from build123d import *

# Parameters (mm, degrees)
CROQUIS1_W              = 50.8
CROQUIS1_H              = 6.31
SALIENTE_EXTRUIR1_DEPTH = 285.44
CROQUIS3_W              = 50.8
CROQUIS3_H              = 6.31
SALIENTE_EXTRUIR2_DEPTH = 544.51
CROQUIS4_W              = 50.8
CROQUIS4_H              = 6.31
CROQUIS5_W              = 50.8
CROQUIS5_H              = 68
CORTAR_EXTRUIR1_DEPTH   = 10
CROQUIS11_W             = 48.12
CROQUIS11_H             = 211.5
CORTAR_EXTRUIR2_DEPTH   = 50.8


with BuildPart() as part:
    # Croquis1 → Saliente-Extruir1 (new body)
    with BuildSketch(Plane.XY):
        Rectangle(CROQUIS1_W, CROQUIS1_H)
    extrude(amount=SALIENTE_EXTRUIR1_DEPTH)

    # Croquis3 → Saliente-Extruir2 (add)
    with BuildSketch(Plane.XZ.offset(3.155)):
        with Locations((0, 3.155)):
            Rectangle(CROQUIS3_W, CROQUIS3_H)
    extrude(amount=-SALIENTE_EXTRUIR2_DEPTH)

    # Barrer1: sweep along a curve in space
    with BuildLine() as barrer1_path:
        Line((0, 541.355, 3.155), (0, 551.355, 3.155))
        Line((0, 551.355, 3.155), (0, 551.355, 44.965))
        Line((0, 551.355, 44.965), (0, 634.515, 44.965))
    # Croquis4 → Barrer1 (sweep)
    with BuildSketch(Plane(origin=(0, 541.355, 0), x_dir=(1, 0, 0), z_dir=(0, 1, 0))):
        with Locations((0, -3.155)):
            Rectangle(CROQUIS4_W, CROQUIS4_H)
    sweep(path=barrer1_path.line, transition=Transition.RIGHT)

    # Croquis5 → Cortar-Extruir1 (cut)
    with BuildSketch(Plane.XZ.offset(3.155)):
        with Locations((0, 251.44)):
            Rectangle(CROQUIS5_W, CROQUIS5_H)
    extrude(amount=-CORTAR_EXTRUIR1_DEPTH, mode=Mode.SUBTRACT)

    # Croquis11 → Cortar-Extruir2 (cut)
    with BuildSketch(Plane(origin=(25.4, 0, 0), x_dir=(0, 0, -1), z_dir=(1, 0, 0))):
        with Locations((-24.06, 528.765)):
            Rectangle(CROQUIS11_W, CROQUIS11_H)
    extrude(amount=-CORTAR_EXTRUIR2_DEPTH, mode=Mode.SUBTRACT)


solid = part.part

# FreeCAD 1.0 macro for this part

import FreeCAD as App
import Part
import Sketcher

V = App.Vector
Q = App.Units.Quantity


def add_polygon(sketch, points):
    """Adds a closed chain of lines whose ends are joined by coincident constraints."""
    first, n = sketch.GeometryCount, len(points)
    for a, b in zip(points, points[1:] + points[:1]):
        sketch.addGeometry(Part.LineSegment(App.Vector(*a, 0), App.Vector(*b, 0)), False)
    for i in range(n):
        sketch.addConstraint(Sketcher.Constraint("Coincident", first + i, 2, first + (i + 1) % n, 1))

doc = App.newDocument("Part")
body = doc.addObject("PartDesign::Body", "Body")

# Sketch on XY plane
sketch1 = doc.addObject("Sketcher::SketchObject", "Sketch")
body.addObject(sketch1)
sketch1.AttachmentSupport = (doc.XY_Plane, [""])
sketch1.MapMode = "FlatFace"
add_polygon(sketch1, [(-25, 3), (-25, -3), (25, -3), (25, 3)])  # lines 0-3
sketch1.addConstraint([
    Sketcher.Constraint("Vertical", 0),
    Sketcher.Constraint("Horizontal", 1),
    Sketcher.Constraint("Vertical", 2),
    Sketcher.Constraint("Horizontal", 3),
    Sketcher.Constraint("Symmetric", 0, 2, 2, 2, -1, 1),
    Sketcher.Constraint("DistanceX", 1, 1, 1, 2, Q("50.8 mm")),
    Sketcher.Constraint("DistanceY", 0, 2, 0, 1, Q("6.31 mm")),
])
pad1 = doc.addObject("PartDesign::Pad", "Pad")
body.addObject(pad1)
pad1.Profile = sketch1
pad1.Length = 285.44

# Sketch on XZ plane
sketch2 = doc.addObject("Sketcher::SketchObject", "Sketch001")
body.addObject(sketch2)
sketch2.AttachmentSupport = (doc.XZ_Plane, [""])
sketch2.MapMode = "FlatFace"
sketch2.AttachmentOffset = App.Placement(V(0, 0, 3.155), App.Rotation())
add_polygon(sketch2, [(-25, 6), (-25, 0), (25, 0), (25, 6)])  # lines 0-3
sketch2.addConstraint([
    Sketcher.Constraint("Vertical", 0),
    Sketcher.Constraint("Horizontal", 1),
    Sketcher.Constraint("Vertical", 2),
    Sketcher.Constraint("Horizontal", 3),
    Sketcher.Constraint("Symmetric", 0, 2, 1, 2, -1, 1),
    Sketcher.Constraint("DistanceX", 1, 1, 1, 2, Q("50.8 mm")),
    Sketcher.Constraint("DistanceY", 0, 2, 0, 1, Q("6.31 mm")),
])
pad2 = doc.addObject("PartDesign::Pad", "Pad001")
body.addObject(pad2)
pad2.Profile = sketch2
pad2.Length = 544.51
pad2.Reversed = True

# Sketch on XZ plane
sketch3 = doc.addObject("Sketcher::SketchObject", "Sketch002")
body.addObject(sketch3)
sketch3.AttachmentSupport = (doc.XZ_Plane, [""])
sketch3.MapMode = "FlatFace"
sketch3.AttachmentOffset = App.Placement(V(0, 0, -541.355), App.Rotation())
add_polygon(sketch3, [(-25, 0), (-25, 6), (25, 6), (25, 0)])  # lines 0-3
sketch3.addConstraint([
    Sketcher.Constraint("Vertical", 0),
    Sketcher.Constraint("Horizontal", 1),
    Sketcher.Constraint("Vertical", 2),
    Sketcher.Constraint("Horizontal", 3),
    Sketcher.Constraint("Symmetric", 2, 2, 3, 2, -1, 1),
    Sketcher.Constraint("DistanceX", 1, 1, 1, 2, Q("50.8 mm")),
    Sketcher.Constraint("DistanceY", 0, 1, 0, 2, Q("6.31 mm")),
])

# Sketch on YZ plane
sketch4 = doc.addObject("Sketcher::SketchObject", "Sketch003")
body.addObject(sketch4)
sketch4.AttachmentSupport = (doc.YZ_Plane, [""])
sketch4.MapMode = "FlatFace"
sketch4.addGeometry([
    Part.LineSegment(V(541, 3, 0), V(551, 3, 0)),
    Part.LineSegment(V(551, 3, 0), V(551, 45, 0)),
    Part.LineSegment(V(551, 45, 0), V(635, 45, 0)),
], False)
sketch4.addConstraint([
    Sketcher.Constraint("Coincident", 0, 2, 1, 1),
    Sketcher.Constraint("Coincident", 1, 2, 2, 1),
    Sketcher.Constraint("Horizontal", 0),
    Sketcher.Constraint("Vertical", 1),
    Sketcher.Constraint("Horizontal", 2),
    Sketcher.Constraint("DistanceX", 0, 1, 0, 2, Q("10 mm")),
    Sketcher.Constraint("DistanceX", 2, 1, 2, 2, Q("83.16 mm")),
    Sketcher.Constraint("DistanceY", 1, 1, 1, 2, Q("41.81 mm")),
    Sketcher.Constraint("DistanceX", -1, 1, 0, 1, Q("541.355 mm")),
    Sketcher.Constraint("DistanceY", -1, 1, 0, 1, Q("3.155 mm")),
])
doc.recompute()

additivepipe = doc.addObject("PartDesign::AdditivePipe", "AdditivePipe")
body.addObject(additivepipe)
additivepipe.Profile = sketch3
additivepipe.Spine = (sketch4, ["Edge1", "Edge2", "Edge3"])
additivepipe.Transition = "Right corner"

# Sketch on XZ plane
sketch5 = doc.addObject("Sketcher::SketchObject", "Sketch004")
body.addObject(sketch5)
sketch5.AttachmentSupport = (doc.XZ_Plane, [""])
sketch5.MapMode = "FlatFace"
sketch5.AttachmentOffset = App.Placement(V(0, 0, 3.155), App.Rotation())
add_polygon(sketch5, [(-25, 285), (-25, 217), (25, 217), (25, 285)])  # lines 0-3
sketch5.addConstraint([
    Sketcher.Constraint("Vertical", 0),
    Sketcher.Constraint("Horizontal", 1),
    Sketcher.Constraint("Vertical", 2),
    Sketcher.Constraint("Horizontal", 3),
    Sketcher.Constraint("DistanceY", 0, 2, 0, 1, Q("68 mm")),
    Sketcher.Constraint("DistanceX", 1, 1, 1, 2, Q("50.8 mm")),
    Sketcher.Constraint("DistanceX", 0, 2, -1, 1, Q("25.4 mm")),
    Sketcher.Constraint("DistanceY", -1, 1, 0, 2, Q("217.44 mm")),
])
pocket1 = doc.addObject("PartDesign::Pocket", "Pocket")
body.addObject(pocket1)
pocket1.Profile = sketch5
pocket1.Length = 10

# Sketch on YZ plane
sketch6 = doc.addObject("Sketcher::SketchObject", "Sketch005")
body.addObject(sketch6)
sketch6.AttachmentSupport = (doc.YZ_Plane, [""])
sketch6.MapMode = "FlatFace"
sketch6.AttachmentOffset = App.Placement(V(0, 0, 25.4), App.Rotation())
add_polygon(sketch6, [(635, 48), (423, 48), (423, 0), (635, 0)])  # lines 0-3
sketch6.addConstraint([
    Sketcher.Constraint("Horizontal", 0),
    Sketcher.Constraint("Vertical", 1),
    Sketcher.Constraint("Horizontal", 2),
    Sketcher.Constraint("Vertical", 3),
    Sketcher.Constraint("PointOnObject", 1, 2, -1),
    Sketcher.Constraint("DistanceX", 0, 2, 0, 1, Q("211.5 mm")),
    Sketcher.Constraint("DistanceY", 1, 2, 1, 1, Q("48.12 mm")),
    Sketcher.Constraint("DistanceX", -1, 1, 0, 2, Q("423.015 mm")),
])
pocket2 = doc.addObject("PartDesign::Pocket", "Pocket001")
body.addObject(pocket2)
pocket2.Profile = sketch6
pocket2.Length = 50.8

doc.recompute()
